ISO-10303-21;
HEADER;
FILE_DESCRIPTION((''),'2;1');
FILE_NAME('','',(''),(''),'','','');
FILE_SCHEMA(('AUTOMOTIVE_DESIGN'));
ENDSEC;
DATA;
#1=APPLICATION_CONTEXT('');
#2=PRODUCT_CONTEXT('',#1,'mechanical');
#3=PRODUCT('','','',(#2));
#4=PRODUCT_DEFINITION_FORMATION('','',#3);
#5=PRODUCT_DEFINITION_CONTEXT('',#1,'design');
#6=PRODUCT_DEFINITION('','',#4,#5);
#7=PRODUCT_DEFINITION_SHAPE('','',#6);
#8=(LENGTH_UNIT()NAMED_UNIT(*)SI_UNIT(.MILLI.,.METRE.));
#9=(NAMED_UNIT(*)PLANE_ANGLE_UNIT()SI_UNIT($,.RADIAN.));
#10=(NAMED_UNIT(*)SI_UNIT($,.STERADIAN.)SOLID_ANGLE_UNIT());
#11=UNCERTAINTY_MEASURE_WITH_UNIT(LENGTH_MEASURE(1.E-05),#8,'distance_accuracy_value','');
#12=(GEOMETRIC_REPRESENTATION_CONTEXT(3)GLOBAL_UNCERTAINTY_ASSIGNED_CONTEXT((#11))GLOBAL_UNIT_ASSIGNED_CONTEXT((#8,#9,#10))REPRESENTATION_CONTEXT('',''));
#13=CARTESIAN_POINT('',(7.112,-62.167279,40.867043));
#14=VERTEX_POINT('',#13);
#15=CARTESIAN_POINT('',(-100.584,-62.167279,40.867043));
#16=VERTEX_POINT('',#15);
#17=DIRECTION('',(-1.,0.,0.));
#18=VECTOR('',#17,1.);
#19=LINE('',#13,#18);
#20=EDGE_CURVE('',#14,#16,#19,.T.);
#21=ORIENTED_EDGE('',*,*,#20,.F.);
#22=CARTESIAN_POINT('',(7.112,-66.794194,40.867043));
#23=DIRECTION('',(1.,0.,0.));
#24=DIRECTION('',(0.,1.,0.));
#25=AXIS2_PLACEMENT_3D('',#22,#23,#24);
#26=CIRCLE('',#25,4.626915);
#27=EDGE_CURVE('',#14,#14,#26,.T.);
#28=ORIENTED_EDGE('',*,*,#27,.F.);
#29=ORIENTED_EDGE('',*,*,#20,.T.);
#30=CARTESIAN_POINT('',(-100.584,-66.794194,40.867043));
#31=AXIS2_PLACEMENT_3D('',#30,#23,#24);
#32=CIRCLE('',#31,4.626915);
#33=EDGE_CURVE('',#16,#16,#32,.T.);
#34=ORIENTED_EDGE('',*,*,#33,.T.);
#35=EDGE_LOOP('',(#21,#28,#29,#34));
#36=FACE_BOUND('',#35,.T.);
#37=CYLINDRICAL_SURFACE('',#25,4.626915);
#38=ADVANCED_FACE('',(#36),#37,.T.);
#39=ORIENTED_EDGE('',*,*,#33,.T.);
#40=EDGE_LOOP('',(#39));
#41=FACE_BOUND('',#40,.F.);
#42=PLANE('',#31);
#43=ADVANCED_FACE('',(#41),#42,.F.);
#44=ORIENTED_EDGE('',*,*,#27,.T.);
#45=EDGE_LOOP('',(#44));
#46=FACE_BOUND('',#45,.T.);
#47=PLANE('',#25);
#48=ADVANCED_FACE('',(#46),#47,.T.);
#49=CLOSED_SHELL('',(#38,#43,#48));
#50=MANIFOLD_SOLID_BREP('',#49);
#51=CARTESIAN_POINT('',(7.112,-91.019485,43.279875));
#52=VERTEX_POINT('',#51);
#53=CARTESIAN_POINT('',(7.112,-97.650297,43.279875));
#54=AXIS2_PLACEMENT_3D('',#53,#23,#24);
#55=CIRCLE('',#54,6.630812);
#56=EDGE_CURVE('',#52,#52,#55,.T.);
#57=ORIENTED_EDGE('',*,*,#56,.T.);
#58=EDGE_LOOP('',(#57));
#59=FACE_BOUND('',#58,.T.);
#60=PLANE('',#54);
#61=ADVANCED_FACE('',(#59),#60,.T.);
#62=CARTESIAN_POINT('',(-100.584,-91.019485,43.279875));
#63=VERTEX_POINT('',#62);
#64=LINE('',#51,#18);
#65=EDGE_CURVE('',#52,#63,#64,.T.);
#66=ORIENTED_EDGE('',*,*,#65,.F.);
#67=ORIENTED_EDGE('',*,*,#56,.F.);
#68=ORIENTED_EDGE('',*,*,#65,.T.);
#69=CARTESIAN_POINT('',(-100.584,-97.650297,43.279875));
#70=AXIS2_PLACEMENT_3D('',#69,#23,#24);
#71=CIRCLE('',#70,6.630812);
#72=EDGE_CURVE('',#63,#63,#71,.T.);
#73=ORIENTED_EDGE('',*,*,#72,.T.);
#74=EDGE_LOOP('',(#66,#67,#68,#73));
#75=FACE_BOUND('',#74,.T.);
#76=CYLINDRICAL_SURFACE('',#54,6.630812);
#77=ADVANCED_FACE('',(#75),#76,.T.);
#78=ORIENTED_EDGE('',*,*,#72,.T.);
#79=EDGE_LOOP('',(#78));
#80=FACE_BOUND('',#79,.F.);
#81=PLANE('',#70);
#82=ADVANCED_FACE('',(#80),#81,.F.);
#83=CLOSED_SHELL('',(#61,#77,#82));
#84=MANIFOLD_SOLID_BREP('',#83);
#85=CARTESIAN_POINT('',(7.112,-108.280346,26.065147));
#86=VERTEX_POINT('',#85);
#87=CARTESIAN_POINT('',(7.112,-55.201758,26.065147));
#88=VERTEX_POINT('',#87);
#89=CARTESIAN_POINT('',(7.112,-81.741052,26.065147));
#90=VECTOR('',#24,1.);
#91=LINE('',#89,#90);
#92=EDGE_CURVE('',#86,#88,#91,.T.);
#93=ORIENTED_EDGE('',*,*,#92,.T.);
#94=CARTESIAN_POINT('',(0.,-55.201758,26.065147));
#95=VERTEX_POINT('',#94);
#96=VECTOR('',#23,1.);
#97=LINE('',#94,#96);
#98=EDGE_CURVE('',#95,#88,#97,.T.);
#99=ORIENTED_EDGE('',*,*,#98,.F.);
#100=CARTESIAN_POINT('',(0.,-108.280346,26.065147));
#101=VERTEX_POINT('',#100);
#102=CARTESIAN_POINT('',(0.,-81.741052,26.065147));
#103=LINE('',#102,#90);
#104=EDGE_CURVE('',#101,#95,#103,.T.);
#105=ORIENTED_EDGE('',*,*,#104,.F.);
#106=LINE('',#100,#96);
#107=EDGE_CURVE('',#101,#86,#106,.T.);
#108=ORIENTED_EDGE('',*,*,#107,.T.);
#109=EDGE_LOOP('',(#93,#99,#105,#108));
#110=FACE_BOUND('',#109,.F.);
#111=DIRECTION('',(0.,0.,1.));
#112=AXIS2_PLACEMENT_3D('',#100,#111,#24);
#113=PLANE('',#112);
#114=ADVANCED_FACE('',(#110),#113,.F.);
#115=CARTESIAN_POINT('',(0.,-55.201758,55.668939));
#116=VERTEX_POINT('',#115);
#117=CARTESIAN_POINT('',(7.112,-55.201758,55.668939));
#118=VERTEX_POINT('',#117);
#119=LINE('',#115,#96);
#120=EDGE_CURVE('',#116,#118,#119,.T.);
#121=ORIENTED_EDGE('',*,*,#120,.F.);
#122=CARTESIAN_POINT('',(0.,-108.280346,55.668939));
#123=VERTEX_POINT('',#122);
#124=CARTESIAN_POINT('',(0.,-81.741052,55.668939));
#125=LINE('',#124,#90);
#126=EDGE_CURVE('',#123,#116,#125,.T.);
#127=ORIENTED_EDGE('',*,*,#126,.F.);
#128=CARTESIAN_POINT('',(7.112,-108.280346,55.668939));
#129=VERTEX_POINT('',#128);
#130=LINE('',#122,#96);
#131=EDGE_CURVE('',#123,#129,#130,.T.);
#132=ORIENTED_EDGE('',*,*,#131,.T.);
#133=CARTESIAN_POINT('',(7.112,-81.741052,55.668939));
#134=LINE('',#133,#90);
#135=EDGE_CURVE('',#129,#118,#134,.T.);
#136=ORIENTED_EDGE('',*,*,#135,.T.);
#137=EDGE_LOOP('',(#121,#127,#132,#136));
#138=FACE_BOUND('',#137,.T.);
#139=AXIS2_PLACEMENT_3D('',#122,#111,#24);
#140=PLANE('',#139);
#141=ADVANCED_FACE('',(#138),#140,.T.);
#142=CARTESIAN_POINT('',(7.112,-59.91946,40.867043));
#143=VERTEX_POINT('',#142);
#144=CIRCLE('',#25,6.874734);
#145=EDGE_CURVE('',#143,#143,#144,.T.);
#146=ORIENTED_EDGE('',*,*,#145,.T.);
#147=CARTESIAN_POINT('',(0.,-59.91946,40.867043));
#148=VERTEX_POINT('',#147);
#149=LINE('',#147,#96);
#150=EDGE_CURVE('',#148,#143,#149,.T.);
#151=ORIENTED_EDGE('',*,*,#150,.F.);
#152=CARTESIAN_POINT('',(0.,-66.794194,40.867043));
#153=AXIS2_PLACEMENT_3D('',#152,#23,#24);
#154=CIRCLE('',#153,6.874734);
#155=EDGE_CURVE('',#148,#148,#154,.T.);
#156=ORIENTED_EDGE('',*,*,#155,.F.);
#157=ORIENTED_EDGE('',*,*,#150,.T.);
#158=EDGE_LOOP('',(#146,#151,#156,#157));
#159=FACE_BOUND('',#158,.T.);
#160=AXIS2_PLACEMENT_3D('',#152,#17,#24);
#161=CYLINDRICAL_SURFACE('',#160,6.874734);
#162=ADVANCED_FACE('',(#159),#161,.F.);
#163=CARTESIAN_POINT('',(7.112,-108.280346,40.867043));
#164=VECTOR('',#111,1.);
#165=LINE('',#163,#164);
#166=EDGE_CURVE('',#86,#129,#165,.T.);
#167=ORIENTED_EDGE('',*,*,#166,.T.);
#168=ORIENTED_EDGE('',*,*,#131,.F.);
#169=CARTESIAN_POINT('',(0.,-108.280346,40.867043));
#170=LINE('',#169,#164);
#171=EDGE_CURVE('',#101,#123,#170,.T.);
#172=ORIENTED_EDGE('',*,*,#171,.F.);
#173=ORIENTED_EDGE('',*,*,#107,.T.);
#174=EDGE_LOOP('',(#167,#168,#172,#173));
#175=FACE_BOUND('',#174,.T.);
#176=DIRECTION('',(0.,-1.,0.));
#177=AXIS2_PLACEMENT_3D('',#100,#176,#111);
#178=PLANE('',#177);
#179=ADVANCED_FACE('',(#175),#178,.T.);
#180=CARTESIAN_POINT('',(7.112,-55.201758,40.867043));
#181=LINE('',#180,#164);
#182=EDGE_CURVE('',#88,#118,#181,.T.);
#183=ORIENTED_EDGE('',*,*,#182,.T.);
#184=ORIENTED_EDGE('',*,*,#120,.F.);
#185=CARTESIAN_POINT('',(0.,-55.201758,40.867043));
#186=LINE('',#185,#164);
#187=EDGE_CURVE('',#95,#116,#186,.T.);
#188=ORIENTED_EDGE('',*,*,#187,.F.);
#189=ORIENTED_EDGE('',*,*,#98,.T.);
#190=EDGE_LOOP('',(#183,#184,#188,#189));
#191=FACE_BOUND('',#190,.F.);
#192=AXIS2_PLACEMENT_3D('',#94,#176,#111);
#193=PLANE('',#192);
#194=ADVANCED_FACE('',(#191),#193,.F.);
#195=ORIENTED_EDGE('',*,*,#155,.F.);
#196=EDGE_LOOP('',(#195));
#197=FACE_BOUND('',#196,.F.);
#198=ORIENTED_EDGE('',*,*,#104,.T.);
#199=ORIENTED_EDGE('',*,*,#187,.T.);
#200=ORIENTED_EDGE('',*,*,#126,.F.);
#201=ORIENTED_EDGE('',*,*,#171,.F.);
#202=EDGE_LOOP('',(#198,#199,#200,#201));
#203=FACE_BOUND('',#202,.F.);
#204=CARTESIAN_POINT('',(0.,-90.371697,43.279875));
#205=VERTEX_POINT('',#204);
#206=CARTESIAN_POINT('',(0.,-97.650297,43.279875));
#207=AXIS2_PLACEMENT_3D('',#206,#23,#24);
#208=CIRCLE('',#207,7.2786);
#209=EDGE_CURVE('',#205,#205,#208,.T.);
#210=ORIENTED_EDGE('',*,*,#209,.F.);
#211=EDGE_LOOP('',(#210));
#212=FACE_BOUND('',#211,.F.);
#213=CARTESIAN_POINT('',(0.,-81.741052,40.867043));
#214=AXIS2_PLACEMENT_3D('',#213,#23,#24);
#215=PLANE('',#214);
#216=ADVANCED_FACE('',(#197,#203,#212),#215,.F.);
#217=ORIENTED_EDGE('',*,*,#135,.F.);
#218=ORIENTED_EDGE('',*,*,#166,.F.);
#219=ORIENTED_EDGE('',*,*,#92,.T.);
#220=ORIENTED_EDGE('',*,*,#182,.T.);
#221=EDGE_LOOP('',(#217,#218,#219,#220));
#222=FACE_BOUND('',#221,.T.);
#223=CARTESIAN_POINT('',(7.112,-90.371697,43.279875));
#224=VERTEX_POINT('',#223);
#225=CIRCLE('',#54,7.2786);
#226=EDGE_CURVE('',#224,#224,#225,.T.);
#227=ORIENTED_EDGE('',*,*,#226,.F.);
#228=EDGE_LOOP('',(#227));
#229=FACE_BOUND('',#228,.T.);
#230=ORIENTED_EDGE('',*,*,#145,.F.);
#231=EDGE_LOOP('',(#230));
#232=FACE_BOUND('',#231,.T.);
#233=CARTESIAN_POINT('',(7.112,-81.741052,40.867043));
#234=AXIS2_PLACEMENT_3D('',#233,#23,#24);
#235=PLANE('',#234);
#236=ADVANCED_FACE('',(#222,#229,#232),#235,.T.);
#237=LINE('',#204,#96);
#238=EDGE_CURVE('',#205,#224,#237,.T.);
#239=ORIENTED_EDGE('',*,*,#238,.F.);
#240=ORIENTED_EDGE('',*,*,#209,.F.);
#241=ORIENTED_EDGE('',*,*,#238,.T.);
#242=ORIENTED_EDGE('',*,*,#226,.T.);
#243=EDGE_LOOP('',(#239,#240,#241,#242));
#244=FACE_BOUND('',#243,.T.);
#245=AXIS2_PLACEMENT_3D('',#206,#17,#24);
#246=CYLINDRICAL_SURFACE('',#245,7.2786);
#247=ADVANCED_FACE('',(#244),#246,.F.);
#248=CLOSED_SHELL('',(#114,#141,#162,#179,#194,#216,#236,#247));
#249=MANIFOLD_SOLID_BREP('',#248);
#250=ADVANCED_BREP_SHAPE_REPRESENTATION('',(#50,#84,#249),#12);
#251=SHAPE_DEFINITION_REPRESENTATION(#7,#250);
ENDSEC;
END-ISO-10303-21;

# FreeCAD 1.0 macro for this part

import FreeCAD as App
import Part
import Sketcher
Q = App.Units.Quantity


def add_polygon(sketch, points):
    """Adds a closed chain of lines whose ends are joined by coincident constraints."""
    first, n = sketch.GeometryCount, len(points)
    for a, b in zip(points, points[1:] + points[:1]):
        sketch.addGeometry(Part.LineSegment(App.Vector(*a, 0), App.Vector(*b, 0)), False)
    for i in range(n):
        sketch.addConstraint(Sketcher.Constraint("Coincident", first + i, 2, first + (i + 1) % n, 1))

doc = App.newDocument("Part")
body = doc.addObject("PartDesign::Body", "Body")

# Sketch on YZ plane
sketch1 = body.newObject("Sketcher::SketchObject", "Sketch")
sketch1.AttachmentSupport = (doc.getObject("YZ_Plane"), [""])
sketch1.MapMode = "FlatFace"
add_polygon(sketch1, [(-108, 56), (-108, 26), (-55, 26), (-55, 56)])  # lines 0-3
sketch1.addGeometry(Part.Circle(App.Vector(-67, 41, 0), App.Vector(0, 0, 1), 7), False)  # 4
sketch1.addGeometry(Part.Circle(App.Vector(-98, 43, 0), App.Vector(0, 0, 1), 7), False)  # 5
sketch1.addConstraint([
    Sketcher.Constraint("Vertical", 0),
    Sketcher.Constraint("Horizontal", 1),
    Sketcher.Constraint("Vertical", 2),
    Sketcher.Constraint("Horizontal", 3),
    Sketcher.Constraint("Diameter", 5, Q("14.5572 mm")),
    Sketcher.Constraint("Diameter", 4, Q("13.749468 mm")),
    Sketcher.Constraint("DistanceX", 5, 3, -1, 1, Q("3.8444999 in")),
    Sketcher.Constraint("DistanceX", 1, 1, 1, 2, Q("53.078588 mm")),
    Sketcher.Constraint("DistanceY", 0, 2, 0, 1, Q("29.603792 mm")),
    Sketcher.Constraint("DistanceY", -1, 1, 2, 2, Q("55.668939 mm")),
    Sketcher.Constraint("DistanceY", 4, 3, 5, 3, Q("2.412832 mm")),
    Sketcher.Constraint("DistanceX", 0, 2, 5, 3, Q("10.630049 mm")),
    Sketcher.Constraint("DistanceX", 0, 2, 4, 3, Q("41.486152 mm")),
    Sketcher.Constraint("DistanceY", -1, 1, 4, 3, Q("40.867043 mm")),
])
pad1 = body.newObject("PartDesign::Pad", "Pad")
pad1.Profile = sketch1
pad1.Length = Q("0.28 in")
body2 = doc.addObject("PartDesign::Body", "Body001")
body2.AllowCompound = True

# Sketch on YZ plane
sketch2 = body2.newObject("Sketcher::SketchObject", "Sketch001")
sketch2.AttachmentSupport = (doc.getObject("YZ_Plane001"), [""])
sketch2.MapMode = "FlatFace"
sketch2.AttachmentOffset = App.Placement(App.Vector(0, 0, 0.28 * 25.4), App.Rotation())
sketch2.addGeometry([
    Part.Circle(App.Vector(-97.7, 43.3, 0), App.Vector(0, 0, 1), 6.6),
    Part.Circle(App.Vector(-66.8, 40.9, 0), App.Vector(0, 0, 1), 4.6),
], False)
sketch2.addConstraint([
    Sketcher.Constraint("Diameter", 1, Q("9.25383 mm")),
    Sketcher.Constraint("Diameter", 0, Q("13.261624 mm")),
    Sketcher.Constraint("DistanceX", 0, 3, -1, 1, Q("3.8444999 in")),
    Sketcher.Constraint("DistanceY", 1, 3, 0, 3, Q("2.412832 mm")),
    Sketcher.Constraint("DistanceY", -1, 1, 0, 3, Q("43.279875 mm")),
    Sketcher.Constraint("DistanceX", 1, 3, -1, 1, Q("66.794194 mm")),
])
pad2 = body2.newObject("PartDesign::Pad", "Pad001")
pad2.Profile = sketch2
pad2.Length = Q("4.24 in")
pad2.Reversed = True

doc.recompute()
